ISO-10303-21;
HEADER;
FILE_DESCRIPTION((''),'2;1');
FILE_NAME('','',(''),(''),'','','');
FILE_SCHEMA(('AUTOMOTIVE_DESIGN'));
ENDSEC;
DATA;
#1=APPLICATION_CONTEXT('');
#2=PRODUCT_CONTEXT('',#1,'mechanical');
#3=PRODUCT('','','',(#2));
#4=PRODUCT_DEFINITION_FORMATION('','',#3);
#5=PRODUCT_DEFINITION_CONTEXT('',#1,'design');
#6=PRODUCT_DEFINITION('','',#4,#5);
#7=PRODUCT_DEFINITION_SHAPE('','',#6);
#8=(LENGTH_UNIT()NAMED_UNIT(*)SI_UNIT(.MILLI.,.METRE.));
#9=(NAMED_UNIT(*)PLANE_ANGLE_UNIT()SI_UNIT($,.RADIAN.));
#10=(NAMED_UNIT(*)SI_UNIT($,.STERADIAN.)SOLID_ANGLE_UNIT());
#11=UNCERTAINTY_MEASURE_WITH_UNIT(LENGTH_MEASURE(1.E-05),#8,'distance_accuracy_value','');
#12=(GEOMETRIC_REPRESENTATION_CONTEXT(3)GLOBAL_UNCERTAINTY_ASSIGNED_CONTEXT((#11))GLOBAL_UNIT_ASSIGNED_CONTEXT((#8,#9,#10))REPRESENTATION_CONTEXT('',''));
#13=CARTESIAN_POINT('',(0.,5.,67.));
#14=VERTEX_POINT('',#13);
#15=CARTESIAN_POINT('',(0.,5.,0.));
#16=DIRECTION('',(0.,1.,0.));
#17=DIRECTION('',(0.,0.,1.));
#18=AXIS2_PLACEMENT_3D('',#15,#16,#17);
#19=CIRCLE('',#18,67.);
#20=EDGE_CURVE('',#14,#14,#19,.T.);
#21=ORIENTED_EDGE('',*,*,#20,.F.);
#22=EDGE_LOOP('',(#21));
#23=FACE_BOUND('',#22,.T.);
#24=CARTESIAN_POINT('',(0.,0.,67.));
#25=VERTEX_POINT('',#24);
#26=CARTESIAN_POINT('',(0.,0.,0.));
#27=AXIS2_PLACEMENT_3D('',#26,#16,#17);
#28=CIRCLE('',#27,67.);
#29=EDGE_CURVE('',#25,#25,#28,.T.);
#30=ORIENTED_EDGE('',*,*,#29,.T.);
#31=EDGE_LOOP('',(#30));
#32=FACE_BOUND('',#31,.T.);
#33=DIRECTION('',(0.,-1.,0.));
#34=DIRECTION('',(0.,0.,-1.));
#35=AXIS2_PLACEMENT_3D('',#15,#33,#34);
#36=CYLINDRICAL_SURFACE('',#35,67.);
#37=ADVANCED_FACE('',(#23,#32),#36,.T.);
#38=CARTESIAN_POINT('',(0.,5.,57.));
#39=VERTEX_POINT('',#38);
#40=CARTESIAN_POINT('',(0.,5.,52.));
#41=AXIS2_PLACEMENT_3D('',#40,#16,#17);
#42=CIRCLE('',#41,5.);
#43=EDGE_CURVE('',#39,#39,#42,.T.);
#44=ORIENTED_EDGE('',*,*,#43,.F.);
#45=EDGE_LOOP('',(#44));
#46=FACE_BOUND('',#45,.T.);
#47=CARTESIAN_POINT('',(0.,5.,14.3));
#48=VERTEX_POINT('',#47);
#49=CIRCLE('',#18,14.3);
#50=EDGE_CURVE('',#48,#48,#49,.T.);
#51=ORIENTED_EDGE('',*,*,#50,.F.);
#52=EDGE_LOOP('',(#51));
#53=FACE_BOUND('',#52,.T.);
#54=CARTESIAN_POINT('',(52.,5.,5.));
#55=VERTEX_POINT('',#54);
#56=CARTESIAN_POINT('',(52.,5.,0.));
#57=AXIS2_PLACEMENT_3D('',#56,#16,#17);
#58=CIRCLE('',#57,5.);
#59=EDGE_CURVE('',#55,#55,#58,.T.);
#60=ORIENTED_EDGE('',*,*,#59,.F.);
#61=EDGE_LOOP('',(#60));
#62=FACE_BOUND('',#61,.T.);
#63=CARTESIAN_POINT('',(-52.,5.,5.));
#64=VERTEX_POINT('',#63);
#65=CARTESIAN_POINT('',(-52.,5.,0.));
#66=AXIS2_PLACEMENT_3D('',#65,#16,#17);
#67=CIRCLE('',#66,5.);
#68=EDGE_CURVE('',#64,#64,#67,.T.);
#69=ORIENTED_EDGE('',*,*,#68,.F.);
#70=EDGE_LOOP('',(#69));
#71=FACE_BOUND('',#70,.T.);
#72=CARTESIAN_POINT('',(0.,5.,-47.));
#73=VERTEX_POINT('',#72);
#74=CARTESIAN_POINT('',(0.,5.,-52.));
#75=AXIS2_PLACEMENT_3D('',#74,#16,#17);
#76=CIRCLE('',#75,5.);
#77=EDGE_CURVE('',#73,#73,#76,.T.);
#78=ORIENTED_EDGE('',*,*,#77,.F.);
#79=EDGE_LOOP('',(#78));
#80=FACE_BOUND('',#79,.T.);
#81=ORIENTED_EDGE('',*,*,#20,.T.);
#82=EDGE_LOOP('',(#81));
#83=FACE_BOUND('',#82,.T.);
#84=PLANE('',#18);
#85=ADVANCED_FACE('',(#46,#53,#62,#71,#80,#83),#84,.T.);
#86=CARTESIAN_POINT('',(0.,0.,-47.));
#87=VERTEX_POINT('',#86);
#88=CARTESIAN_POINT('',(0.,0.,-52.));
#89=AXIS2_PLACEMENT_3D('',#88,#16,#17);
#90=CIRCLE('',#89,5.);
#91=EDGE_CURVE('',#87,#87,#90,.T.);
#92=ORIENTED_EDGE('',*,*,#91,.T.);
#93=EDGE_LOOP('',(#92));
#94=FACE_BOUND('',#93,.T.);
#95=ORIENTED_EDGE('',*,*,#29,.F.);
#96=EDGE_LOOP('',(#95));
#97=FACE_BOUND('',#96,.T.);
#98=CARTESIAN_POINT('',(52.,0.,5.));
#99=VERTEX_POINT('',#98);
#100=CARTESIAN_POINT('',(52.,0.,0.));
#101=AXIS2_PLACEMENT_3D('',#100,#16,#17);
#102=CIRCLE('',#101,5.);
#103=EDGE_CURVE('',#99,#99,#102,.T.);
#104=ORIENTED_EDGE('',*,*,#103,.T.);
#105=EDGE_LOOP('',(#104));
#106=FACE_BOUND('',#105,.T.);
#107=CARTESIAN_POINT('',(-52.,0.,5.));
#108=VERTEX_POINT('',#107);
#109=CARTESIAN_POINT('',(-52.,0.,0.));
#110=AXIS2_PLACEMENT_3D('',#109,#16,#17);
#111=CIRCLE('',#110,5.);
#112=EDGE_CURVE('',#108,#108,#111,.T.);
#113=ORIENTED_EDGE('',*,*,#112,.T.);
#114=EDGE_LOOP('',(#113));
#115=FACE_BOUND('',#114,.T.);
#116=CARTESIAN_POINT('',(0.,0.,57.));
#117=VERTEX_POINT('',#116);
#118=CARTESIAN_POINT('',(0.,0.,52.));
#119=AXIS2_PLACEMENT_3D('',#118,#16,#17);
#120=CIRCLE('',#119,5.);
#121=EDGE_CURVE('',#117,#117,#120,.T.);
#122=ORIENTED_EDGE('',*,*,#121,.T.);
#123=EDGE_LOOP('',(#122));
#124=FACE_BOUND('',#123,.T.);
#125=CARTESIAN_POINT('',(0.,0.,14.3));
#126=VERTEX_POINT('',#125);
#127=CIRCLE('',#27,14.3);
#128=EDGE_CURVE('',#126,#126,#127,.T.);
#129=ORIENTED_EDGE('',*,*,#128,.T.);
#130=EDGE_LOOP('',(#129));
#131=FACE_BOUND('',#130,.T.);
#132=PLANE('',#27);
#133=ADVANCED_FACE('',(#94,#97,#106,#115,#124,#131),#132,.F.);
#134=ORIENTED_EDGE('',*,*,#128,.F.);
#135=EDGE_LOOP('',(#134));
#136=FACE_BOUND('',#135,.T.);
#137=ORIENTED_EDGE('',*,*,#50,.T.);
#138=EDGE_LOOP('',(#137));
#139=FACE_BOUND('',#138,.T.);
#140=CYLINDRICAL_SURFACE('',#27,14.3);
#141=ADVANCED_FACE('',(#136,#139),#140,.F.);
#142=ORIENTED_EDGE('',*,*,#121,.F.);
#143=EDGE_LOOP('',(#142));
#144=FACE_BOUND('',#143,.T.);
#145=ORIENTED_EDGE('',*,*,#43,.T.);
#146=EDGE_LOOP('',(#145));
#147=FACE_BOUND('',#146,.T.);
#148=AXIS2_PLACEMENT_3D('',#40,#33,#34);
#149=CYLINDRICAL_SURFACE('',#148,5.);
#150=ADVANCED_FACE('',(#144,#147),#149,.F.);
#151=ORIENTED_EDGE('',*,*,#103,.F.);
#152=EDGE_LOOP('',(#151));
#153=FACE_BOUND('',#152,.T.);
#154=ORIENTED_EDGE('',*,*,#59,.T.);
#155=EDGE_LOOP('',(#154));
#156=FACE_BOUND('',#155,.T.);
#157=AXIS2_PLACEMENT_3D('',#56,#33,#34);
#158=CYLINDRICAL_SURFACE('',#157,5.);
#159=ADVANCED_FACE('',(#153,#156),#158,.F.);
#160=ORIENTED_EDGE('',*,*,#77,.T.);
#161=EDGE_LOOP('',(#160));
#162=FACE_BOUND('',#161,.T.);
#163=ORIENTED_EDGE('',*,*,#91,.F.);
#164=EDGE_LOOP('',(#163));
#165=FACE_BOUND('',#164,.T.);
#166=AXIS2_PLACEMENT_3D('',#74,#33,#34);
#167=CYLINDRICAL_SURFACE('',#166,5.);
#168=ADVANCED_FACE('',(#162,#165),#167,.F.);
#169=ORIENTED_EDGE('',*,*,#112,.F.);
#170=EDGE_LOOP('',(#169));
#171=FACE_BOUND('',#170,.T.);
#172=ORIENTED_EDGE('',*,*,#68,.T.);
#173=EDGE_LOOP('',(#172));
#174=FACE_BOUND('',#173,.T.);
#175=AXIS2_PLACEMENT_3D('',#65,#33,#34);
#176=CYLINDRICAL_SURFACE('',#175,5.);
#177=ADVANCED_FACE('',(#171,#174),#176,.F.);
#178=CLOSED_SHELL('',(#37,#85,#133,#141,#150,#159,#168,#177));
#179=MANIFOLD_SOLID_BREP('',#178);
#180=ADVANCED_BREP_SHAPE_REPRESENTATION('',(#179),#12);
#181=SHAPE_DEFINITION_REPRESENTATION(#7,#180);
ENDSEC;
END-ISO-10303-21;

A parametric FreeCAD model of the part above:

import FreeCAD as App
import Part
import Sketcher
from FreeCAD import Vector
Q = App.Units.Quantity

doc = App.newDocument("Part")
body = doc.addObject("PartDesign::Body", "Body")

# Sketch on XZ plane
sketch1 = doc.addObject("Sketcher::SketchObject", "Sketch")
body.addObject(sketch1)
sketch1.AttachmentSupport = (doc.XZ_Plane, [""])
sketch1.MapMode = "FlatFace"
sketch1.addGeometry(Part.Circle(Vector(0, 0, 0), Vector(0, 0, 1), 67), False)
sketch1.addGeometry(Part.Circle(Vector(0, 52, 0), Vector(0, 0, 1), 5), False)
sketch1.addGeometry(Part.Circle(Vector(-52, 0, 0), Vector(0, 0, 1), 5), False)
sketch1.addGeometry(Part.Circle(Vector(52, 0, 0), Vector(0, 0, 1), 5), False)
sketch1.addGeometry(Part.Circle(Vector(0, -52, 0), Vector(0, 0, 1), 5), False)
sketch1.addConstraint(Sketcher.Constraint("Coincident", 0, 3, -1, 1))
sketch1.addConstraint(Sketcher.Constraint("Equal", 1, 2))
sketch1.addConstraint(Sketcher.Constraint("Equal", 2, 3))
sketch1.addConstraint(Sketcher.Constraint("Equal", 3, 4))
sketch1.addConstraint(Sketcher.Constraint("Symmetric", 2, 3, 3, 3, -1, 1))
sketch1.addConstraint(Sketcher.Constraint("Symmetric", 1, 3, 4, 3, -1, 1))
sketch1.addConstraint(Sketcher.Constraint("PointOnObject", 1, 3, -2))
sketch1.addConstraint(Sketcher.Constraint("PointOnObject", 2, 3, -1))
sketch1.addConstraint(Sketcher.Constraint("Diameter", 0, Q("134 mm")))
sketch1.addConstraint(Sketcher.Constraint("Diameter", 1, Q("10 mm")))
sketch1.addConstraint(Sketcher.Constraint("DistanceY", -1, 1, 1, 3, Q("52 mm")))
sketch1.addConstraint(Sketcher.Constraint("DistanceX", 2, 3, -1, 1, Q("52 mm")))
pad1 = doc.addObject("PartDesign::Pad", "Pad")
body.addObject(pad1)
pad1.Profile = sketch1
pad1.Length = 5
pad1.Reversed = True

# Sketch on XZ plane
sketch2 = doc.addObject("Sketcher::SketchObject", "Sketch001")
body.addObject(sketch2)
sketch2.AttachmentSupport = (doc.XZ_Plane, [""])
sketch2.MapMode = "FlatFace"
sketch2.AttachmentOffset = App.Placement(Vector(0, 0, -5), App.Rotation())
sketch2.addGeometry(Part.Circle(Vector(0, 0, 0), Vector(0, 0, 1), 14.3), False)
sketch2.addConstraint(Sketcher.Constraint("Coincident", 0, 3, -1, 1))
sketch2.addConstraint(Sketcher.Constraint("Diameter", 0, Q("28.6 mm")))
pocket1 = doc.addObject("PartDesign::Pocket", "Pocket")
body.addObject(pocket1)
pocket1.Profile = sketch2
pocket1.Type = "ThroughAll"
pocket1.Midplane = True

doc.recompute()
